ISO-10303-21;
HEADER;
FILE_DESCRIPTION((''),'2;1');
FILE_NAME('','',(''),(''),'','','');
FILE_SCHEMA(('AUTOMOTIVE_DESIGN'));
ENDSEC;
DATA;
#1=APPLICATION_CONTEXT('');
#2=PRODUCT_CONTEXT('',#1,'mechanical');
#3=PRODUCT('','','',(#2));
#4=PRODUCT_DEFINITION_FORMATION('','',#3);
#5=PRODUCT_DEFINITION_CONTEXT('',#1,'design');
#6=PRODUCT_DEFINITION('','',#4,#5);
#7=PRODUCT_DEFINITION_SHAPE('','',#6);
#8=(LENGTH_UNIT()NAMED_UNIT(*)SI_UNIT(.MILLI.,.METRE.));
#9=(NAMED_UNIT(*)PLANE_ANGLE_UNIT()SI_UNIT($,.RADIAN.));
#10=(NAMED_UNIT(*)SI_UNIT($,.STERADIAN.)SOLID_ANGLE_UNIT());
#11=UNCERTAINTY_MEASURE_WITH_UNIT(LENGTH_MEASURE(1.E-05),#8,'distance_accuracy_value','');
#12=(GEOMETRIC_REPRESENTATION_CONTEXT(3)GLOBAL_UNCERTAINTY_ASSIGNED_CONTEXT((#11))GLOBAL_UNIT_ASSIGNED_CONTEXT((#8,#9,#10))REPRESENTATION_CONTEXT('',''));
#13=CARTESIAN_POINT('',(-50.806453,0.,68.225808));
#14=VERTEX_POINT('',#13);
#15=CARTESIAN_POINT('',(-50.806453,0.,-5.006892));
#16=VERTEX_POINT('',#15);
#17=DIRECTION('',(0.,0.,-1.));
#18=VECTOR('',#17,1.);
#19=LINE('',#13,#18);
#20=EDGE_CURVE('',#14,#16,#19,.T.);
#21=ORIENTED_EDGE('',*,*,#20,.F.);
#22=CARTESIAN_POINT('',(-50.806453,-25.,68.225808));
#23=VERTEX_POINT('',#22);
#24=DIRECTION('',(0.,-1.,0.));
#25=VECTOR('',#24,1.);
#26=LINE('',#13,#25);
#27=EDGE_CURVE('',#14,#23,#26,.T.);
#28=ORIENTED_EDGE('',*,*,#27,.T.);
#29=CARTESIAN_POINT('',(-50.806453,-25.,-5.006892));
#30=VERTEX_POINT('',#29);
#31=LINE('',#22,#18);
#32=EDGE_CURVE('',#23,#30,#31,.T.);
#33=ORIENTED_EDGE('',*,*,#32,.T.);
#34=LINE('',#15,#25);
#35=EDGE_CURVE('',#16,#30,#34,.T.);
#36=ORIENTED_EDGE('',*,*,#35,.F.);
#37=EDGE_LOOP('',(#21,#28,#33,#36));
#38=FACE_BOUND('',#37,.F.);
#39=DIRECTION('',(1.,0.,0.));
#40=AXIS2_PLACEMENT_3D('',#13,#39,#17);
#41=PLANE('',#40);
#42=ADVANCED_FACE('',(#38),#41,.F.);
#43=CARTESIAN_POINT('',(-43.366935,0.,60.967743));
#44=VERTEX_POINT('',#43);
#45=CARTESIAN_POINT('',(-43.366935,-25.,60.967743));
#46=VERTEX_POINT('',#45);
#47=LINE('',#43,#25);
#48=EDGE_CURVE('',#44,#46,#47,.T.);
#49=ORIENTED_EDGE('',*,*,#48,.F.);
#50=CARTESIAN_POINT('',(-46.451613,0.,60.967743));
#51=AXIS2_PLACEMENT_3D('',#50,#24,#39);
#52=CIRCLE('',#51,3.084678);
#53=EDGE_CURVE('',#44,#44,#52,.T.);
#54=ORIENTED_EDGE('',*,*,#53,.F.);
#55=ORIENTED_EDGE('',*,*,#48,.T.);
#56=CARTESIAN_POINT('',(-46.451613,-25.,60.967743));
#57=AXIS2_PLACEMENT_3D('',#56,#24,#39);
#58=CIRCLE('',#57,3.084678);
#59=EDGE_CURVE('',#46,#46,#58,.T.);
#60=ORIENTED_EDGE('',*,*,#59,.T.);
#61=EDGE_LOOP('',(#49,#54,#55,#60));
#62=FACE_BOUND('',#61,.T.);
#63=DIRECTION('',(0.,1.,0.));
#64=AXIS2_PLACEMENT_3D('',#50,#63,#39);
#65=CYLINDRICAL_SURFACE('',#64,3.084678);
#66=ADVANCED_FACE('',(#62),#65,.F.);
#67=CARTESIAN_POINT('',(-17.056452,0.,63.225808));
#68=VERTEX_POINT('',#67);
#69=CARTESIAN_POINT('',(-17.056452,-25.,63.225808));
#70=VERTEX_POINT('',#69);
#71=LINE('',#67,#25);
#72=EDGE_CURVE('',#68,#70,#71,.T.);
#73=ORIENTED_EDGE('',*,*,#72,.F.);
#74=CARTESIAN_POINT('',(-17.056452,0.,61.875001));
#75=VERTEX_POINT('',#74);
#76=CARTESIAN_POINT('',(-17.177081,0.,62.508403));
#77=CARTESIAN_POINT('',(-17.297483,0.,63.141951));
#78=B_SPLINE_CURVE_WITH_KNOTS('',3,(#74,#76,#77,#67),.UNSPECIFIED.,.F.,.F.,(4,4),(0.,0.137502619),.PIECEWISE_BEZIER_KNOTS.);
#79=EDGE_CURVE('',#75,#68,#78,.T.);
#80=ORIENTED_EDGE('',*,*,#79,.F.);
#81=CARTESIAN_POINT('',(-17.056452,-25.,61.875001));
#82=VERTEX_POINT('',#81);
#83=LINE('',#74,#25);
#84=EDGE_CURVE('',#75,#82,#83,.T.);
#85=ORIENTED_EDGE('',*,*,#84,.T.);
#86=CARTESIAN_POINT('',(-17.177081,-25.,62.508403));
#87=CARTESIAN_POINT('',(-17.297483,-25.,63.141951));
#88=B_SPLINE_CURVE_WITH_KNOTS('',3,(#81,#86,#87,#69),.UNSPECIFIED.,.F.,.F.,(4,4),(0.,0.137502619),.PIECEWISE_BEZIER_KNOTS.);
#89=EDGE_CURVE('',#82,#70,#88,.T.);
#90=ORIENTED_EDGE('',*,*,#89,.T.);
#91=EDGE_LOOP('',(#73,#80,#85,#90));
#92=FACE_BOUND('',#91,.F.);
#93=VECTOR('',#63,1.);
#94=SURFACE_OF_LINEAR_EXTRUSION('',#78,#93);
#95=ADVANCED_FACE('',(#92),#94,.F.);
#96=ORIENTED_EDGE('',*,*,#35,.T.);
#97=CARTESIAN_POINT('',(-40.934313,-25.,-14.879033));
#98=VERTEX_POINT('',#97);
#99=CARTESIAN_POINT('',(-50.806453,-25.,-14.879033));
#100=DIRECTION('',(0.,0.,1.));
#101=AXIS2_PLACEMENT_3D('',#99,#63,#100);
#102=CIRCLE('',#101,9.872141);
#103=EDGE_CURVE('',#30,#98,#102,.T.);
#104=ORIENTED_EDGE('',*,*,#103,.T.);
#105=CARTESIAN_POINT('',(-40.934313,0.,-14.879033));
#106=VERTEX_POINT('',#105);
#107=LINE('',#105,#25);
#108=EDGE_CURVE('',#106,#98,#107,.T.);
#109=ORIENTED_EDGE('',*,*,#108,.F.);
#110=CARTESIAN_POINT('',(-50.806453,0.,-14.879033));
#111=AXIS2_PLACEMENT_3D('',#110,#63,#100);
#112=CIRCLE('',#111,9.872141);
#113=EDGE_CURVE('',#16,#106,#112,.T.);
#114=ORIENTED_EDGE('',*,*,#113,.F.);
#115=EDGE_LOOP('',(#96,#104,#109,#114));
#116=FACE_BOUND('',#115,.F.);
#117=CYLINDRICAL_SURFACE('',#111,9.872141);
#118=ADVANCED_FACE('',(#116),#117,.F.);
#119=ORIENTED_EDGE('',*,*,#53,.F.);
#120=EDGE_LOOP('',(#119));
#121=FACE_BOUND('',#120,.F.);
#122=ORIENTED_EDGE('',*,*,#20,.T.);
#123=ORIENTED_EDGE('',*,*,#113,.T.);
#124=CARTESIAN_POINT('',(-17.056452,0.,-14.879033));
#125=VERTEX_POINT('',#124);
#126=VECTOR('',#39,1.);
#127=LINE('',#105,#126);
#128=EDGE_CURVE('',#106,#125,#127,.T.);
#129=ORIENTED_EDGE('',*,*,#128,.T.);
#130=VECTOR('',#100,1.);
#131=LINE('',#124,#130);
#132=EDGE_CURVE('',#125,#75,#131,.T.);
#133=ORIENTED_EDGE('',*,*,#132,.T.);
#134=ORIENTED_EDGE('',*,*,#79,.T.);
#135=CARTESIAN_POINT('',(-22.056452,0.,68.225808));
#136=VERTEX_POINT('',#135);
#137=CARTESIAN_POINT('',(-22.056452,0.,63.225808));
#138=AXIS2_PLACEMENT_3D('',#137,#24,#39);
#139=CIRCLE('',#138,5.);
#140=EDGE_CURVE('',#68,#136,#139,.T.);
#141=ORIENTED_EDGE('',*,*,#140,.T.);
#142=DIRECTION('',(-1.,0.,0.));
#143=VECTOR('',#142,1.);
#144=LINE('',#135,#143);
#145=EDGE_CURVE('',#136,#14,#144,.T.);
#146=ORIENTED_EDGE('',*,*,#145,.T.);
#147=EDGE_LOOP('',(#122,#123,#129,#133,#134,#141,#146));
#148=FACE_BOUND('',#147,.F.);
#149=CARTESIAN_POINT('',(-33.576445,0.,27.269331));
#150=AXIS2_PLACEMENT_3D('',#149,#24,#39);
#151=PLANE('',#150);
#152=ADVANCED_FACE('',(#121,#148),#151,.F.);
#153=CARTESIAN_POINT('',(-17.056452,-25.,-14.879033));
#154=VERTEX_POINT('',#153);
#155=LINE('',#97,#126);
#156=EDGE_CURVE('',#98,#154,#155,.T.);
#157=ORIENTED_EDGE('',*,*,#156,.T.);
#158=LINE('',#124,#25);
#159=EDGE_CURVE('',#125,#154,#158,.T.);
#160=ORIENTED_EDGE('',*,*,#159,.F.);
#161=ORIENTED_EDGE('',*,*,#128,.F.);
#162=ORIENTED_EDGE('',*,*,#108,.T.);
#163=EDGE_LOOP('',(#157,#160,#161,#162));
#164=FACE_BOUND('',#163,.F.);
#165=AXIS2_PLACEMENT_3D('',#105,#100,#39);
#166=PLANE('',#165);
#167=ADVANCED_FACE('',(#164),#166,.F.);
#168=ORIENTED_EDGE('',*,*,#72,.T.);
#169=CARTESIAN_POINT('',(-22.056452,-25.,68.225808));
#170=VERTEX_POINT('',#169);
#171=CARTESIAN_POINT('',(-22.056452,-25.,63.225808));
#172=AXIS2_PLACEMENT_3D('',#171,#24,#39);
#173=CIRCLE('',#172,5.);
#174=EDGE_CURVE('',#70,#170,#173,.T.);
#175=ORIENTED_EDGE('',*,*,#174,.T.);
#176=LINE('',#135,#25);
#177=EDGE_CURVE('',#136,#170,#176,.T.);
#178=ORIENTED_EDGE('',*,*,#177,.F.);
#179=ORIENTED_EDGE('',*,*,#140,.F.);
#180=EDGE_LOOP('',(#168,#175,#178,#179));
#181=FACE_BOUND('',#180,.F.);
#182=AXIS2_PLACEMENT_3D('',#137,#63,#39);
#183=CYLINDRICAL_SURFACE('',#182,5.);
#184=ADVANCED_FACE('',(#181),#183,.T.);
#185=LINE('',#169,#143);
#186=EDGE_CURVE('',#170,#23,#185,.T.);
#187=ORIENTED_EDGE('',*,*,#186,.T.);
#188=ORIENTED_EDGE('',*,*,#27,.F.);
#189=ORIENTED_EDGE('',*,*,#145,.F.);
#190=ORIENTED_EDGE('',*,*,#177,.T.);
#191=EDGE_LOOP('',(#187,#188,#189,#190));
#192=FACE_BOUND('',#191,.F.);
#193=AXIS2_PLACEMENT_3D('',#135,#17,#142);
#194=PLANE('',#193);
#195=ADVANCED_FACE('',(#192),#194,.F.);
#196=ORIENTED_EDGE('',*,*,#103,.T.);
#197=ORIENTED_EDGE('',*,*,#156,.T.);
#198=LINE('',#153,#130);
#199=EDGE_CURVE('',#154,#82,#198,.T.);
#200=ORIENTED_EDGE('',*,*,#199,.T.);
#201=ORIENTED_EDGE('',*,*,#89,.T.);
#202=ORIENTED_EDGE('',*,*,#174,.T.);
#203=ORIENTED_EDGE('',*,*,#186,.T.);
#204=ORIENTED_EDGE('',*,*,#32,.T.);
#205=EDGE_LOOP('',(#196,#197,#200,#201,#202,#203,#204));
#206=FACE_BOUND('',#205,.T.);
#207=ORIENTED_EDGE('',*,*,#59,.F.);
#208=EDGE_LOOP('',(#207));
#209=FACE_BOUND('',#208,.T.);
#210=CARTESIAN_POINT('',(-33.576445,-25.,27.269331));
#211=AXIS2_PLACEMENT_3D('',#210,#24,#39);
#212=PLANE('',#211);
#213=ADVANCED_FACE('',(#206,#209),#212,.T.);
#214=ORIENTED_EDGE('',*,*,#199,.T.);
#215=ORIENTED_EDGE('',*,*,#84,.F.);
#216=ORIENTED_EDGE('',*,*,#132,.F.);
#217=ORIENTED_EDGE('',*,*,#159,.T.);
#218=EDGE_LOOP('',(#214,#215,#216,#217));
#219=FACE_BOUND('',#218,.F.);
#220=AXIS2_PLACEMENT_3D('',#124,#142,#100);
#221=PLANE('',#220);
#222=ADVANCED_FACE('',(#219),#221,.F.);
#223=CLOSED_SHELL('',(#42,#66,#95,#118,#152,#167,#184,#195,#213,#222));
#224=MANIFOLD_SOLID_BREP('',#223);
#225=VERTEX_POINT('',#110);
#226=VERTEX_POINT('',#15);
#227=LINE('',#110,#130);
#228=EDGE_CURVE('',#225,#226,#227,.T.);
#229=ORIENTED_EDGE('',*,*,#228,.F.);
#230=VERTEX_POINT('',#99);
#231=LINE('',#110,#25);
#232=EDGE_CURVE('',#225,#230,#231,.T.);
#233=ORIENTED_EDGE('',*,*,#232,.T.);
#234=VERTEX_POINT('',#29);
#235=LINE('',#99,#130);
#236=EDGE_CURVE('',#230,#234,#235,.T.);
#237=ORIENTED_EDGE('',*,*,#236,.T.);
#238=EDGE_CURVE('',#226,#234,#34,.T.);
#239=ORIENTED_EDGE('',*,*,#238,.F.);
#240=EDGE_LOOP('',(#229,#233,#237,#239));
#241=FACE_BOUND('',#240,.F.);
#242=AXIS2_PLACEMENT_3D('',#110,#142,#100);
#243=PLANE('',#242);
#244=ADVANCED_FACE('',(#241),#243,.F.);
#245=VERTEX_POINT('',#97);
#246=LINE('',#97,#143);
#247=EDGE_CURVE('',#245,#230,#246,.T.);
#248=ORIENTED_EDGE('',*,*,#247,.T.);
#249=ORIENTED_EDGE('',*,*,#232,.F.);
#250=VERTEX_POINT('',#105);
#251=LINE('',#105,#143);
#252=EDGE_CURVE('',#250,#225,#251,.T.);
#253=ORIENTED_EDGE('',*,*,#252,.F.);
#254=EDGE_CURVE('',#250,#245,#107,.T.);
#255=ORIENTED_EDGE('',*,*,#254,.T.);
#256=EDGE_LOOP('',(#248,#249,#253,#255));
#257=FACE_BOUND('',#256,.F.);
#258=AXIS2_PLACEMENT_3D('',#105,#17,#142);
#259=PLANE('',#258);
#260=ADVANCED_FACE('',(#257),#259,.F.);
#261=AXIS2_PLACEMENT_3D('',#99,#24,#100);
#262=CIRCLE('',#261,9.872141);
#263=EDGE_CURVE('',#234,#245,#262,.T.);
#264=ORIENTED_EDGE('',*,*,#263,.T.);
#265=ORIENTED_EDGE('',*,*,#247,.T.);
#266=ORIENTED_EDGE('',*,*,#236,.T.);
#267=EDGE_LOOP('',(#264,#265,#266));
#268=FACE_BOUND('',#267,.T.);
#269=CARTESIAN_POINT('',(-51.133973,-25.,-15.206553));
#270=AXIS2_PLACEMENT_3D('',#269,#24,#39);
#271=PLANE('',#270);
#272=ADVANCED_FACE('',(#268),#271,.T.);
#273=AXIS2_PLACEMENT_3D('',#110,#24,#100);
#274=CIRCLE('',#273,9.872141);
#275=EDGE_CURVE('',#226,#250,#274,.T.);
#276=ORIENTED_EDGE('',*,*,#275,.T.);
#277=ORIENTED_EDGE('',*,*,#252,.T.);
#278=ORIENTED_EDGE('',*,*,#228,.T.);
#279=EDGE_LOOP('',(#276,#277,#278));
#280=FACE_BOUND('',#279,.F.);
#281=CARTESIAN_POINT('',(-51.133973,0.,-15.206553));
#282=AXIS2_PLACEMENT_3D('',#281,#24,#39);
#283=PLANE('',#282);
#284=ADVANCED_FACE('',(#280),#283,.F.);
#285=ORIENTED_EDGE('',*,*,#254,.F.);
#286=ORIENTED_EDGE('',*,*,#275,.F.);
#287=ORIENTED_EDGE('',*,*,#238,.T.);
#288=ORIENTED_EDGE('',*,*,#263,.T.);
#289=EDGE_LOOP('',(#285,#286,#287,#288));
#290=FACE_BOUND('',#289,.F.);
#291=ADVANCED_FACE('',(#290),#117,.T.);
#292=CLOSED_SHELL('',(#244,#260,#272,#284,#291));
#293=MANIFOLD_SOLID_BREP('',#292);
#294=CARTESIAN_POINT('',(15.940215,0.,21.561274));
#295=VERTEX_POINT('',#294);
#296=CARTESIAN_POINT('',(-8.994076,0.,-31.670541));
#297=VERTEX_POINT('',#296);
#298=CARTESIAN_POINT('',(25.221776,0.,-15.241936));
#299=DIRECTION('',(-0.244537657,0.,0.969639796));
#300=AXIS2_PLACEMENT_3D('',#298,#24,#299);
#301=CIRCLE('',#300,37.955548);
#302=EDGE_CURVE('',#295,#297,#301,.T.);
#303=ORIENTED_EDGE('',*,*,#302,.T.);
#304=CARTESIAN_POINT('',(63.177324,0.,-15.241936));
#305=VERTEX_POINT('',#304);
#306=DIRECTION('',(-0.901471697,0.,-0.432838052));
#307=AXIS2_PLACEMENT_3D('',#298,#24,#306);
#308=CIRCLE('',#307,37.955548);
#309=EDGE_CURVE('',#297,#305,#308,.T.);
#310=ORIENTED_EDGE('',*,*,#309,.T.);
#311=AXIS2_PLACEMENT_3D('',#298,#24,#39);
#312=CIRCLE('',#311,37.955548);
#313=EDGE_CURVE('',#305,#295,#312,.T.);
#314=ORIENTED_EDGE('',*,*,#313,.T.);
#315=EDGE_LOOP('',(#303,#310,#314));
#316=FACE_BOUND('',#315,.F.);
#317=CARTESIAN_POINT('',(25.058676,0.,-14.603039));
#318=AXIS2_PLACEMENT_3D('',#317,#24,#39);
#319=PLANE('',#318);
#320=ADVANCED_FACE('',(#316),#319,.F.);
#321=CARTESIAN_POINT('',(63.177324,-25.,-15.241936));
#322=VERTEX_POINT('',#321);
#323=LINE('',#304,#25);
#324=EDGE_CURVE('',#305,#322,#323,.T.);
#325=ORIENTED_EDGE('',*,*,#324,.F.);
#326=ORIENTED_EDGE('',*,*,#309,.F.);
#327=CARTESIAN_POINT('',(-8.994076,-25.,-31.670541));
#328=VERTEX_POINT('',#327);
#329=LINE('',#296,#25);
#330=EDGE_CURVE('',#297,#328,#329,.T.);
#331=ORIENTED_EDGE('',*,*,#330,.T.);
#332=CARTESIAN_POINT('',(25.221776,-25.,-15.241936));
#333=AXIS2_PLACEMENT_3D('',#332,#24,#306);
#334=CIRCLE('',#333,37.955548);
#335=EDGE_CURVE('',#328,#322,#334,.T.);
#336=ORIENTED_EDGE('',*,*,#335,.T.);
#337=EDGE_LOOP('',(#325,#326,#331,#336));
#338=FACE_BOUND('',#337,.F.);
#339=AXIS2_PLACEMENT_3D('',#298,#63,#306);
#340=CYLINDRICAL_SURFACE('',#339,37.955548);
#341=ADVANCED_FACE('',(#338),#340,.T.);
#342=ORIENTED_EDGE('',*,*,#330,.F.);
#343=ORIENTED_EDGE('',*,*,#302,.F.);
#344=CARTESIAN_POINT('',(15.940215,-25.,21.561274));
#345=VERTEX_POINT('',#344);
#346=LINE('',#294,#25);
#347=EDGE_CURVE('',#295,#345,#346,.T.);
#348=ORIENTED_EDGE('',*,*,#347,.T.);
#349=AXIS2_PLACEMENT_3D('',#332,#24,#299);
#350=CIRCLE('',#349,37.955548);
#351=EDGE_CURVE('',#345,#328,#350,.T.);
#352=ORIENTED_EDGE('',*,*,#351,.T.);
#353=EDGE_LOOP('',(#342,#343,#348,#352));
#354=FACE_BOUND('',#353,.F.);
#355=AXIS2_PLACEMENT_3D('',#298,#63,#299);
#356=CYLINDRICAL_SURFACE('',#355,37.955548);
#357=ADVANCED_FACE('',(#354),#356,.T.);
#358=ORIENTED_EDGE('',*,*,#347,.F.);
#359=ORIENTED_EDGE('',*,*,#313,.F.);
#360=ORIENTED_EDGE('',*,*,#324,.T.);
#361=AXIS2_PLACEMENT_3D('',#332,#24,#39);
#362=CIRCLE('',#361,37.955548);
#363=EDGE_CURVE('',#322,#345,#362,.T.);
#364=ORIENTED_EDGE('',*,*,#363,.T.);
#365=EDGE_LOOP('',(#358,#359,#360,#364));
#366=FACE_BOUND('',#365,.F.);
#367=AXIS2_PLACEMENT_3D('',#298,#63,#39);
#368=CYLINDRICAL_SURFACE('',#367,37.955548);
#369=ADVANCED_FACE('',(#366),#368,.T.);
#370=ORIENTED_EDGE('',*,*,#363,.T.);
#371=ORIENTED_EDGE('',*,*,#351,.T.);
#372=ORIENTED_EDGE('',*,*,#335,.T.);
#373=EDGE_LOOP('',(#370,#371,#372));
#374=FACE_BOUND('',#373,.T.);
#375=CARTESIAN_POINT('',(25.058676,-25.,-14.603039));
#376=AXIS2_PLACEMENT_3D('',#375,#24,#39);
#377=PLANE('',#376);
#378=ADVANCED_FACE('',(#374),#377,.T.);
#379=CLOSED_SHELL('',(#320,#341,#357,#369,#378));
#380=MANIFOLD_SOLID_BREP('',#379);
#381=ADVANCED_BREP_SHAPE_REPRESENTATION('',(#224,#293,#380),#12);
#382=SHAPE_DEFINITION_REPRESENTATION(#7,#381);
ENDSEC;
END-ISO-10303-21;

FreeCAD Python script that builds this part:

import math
import FreeCAD as App
import Part
import Sketcher

V = App.Vector

doc = App.newDocument("Part")
body = doc.addObject("PartDesign::Body", "Body")

sketch1 = body.newObject("Sketcher::SketchObject", "Sketch")
sketch1.AttachmentSupport = (doc.getObject("XZ_Plane"), [""])
sketch1.MapMode = "FlatFace"
sketch1.addGeometry([
    Part.ArcOfCircle(Part.Circle(V(25.221776, -15.241936, 0), V(0, 0, 1), 37.955548), math.radians(104.154512), math.radians(205.647805)),
    Part.ArcOfCircle(Part.Circle(V(25.221776, -15.241936, 0), V(0, 0, 1), 37.955548), math.radians(-154.352195), math.radians(0)),
    Part.ArcOfCircle(Part.Circle(V(25.221776, -15.241936, 0), V(0, 0, 1), 37.955548), math.radians(0), math.radians(104.154512)),
], False)
sketch1.addConstraint([
    Sketcher.Constraint("Tangent", 0, 2, 1, 1),
    Sketcher.Constraint("Tangent", 1, 2, 2, 1),
    Sketcher.Constraint("Tangent", 2, 2, 0, 1),
    Sketcher.Constraint("Horizontal", 2, 3, 1, 2),
    Sketcher.Constraint("Radius", 0, 37.955548),
    Sketcher.Constraint("DistanceX", 0, 2, 1, 2, 72.1714),
    Sketcher.Constraint("DistanceY", 0, 2, -1, 1, 31.670541),
    Sketcher.Constraint("DistanceX", 2, 2, 0, 3, 9.281561),
    Sketcher.Constraint("DistanceX", -1, 1, 0, 3, 25.221776),
])
pad1 = body.newObject("PartDesign::Pad", "Pad")
pad1.Profile = sketch1
pad1.Length = 25
body2 = doc.addObject("PartDesign::Body", "Body001")

sketch2 = body2.newObject("Sketcher::SketchObject", "Sketch001")
sketch2.AttachmentSupport = (doc.getObject("XZ_Plane001"), [""])
sketch2.MapMode = "FlatFace"
sketch2.addGeometry([
    Part.LineSegment(V(-40.934313, -14.879033, 0), V(-17.056452, -14.879033, 0)),
    Part.LineSegment(V(-17.056452, -14.879033, 0), V(-17.056452, 61.875001, 0)),
    Part.BSplineCurve([V(-17.056452, 61.875001, 0), V(-17.177081, 62.508403, 0), V(-17.297483, 63.141951, 0), V(-17.056452, 63.225808, 0)], [4, 4], [0, 0.137502619], False, 3, [1, 1, 1, 1], False),
    Part.ArcOfCircle(Part.Circle(V(-22.056452, 63.225808, 0), V(0, 0, 1), 5), math.radians(0), math.radians(90)),
    Part.LineSegment(V(-22.056452, 68.225808, 0), V(-50.806453, 68.225808, 0)),
    Part.LineSegment(V(-50.806453, 68.225808, 0), V(-50.806453, -5.006892, 0)),
    Part.ArcOfCircle(Part.Circle(V(-50.806453, -14.879033, 0), V(0, 0, 1), 9.872141), math.radians(0), math.radians(90)),
    Part.Circle(V(-46.451613, 60.967743, 0), V(0, 0, 1), 3.084678),
], False)
sketch2.addConstraint([
    Sketcher.Constraint("Block", 2),
    Sketcher.Constraint("Coincident", 0, 2, 1, 1),
    Sketcher.Constraint("Coincident", 1, 2, 2, 1),
    Sketcher.Constraint("Coincident", 2, 2, 3, 1),
    Sketcher.Constraint("Coincident", 3, 2, 4, 1),
    Sketcher.Constraint("Coincident", 4, 2, 5, 1),
    Sketcher.Constraint("Coincident", 5, 2, 6, 2),
    Sketcher.Constraint("Coincident", 6, 1, 0, 1),
    Sketcher.Constraint("Horizontal", 0),
    Sketcher.Constraint("Vertical", 1),
    Sketcher.Constraint("Horizontal", 4),
    Sketcher.Constraint("Vertical", 5),
    Sketcher.Constraint("Radius", 3, 5.0),
    Sketcher.Constraint("DistanceX", 3, 2, 1, 2, 5.0),
    Sketcher.Constraint("DistanceX", 4, 2, 4, 1, 28.750001),
    Sketcher.Constraint("Radius", 6, 9.872141),
    Sketcher.Constraint("DistanceX", 6, 3, 3, 3, 28.750001),
    Sketcher.Constraint("Diameter", 7, 6.169356),
    Sketcher.Constraint("DistanceY", 5, 2, 5, 1, 73.232701),
    Sketcher.Constraint("DistanceX", 7, 3, 6, 1, 5.517301),
    Sketcher.Constraint("DistanceY", 1, 1, 1, 2, 76.754034),
    Sketcher.Constraint("DistanceY", -1, 1, 3, 3, 63.225808),
    Sketcher.Constraint("DistanceY", -1, 1, 7, 3, 60.967743),
])
pad2 = body2.newObject("PartDesign::Pad", "Pad001")
pad2.Profile = sketch2
pad2.Length = 25
body3 = doc.addObject("PartDesign::Body", "Body002")

sketch3 = body3.newObject("Sketcher::SketchObject", "Sketch002")
sketch3.AttachmentSupport = (doc.getObject("XZ_Plane002"), [""])
sketch3.MapMode = "FlatFace"
sketch3.addGeometry([
    Part.ArcOfCircle(Part.Circle(V(-50.806453, -14.879033, 0), V(0, 0, 1), 9.872141), math.radians(90), math.radians(360)),
    Part.LineSegment(V(-40.934313, -14.879033, 0), V(-50.806453, -14.879033, 0)),
    Part.LineSegment(V(-50.806453, -14.879033, 0), V(-50.806453, -5.006892, 0)),
], False)
sketch3.addConstraint([
    Sketcher.Constraint("Coincident", 0, 2, 1, 1),
    Sketcher.Constraint("Coincident", 1, 2, 2, 1),
    Sketcher.Constraint("Coincident", 2, 2, 0, 1),
    Sketcher.Constraint("Horizontal", 1),
    Sketcher.Constraint("Vertical", 2),
    Sketcher.Constraint("Coincident", 1, 2, 0, 3),
    Sketcher.Constraint("Radius", 0, 9.872141),
    Sketcher.Constraint("DistanceX", 0, 3, -1, 1, 50.806453),
    Sketcher.Constraint("DistanceY", 0, 3, -1, 1, 14.879033),
])
pad3 = body3.newObject("PartDesign::Pad", "Pad002")
pad3.Profile = sketch3
pad3.Length = 25

doc.recompute()
